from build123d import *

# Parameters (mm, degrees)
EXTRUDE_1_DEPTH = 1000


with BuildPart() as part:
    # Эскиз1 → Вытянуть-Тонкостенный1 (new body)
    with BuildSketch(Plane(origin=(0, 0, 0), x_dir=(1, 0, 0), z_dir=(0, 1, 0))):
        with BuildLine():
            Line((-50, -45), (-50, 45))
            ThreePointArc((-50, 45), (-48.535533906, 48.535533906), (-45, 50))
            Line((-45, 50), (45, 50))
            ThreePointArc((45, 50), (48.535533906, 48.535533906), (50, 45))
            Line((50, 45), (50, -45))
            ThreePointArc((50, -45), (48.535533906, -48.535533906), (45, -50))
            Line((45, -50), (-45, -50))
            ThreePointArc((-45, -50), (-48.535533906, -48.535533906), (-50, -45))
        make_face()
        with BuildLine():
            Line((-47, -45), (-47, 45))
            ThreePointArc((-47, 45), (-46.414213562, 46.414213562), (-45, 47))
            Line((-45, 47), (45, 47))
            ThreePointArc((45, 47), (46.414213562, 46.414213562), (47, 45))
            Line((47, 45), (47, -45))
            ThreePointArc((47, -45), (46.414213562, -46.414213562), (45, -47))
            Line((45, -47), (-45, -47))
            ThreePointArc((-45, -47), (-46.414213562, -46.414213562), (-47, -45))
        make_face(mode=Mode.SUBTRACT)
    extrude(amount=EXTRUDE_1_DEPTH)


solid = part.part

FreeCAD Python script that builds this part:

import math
import FreeCAD as App
import Part
import Sketcher
from FreeCAD import Vector

doc = App.newDocument("Part")
body = doc.addObject("PartDesign::Body", "Body")

sketch1 = body.newObject("Sketcher::SketchObject", "Sketch")
sketch1.AttachmentSupport = (doc.getObject("XZ_Plane"), [""])
sketch1.MapMode = "FlatFace"
sketch1.addGeometry([
    Part.LineSegment(Vector(-50, -45, 0), Vector(-50, 45, 0)),
    Part.ArcOfCircle(Part.Circle(Vector(-45, 45, 0), Vector(0, 0, 1), 5), math.radians(90), math.radians(180)),
    Part.LineSegment(Vector(-45, 50, 0), Vector(45, 50, 0)),
    Part.ArcOfCircle(Part.Circle(Vector(45, 45, 0), Vector(0, 0, 1), 5), math.radians(0), math.radians(90)),
    Part.LineSegment(Vector(50, 45, 0), Vector(50, -45, 0)),
    Part.ArcOfCircle(Part.Circle(Vector(45, -45, 0), Vector(0, 0, 1), 5), math.radians(-90), math.radians(0)),
    Part.LineSegment(Vector(45, -50, 0), Vector(-45, -50, 0)),
    Part.ArcOfCircle(Part.Circle(Vector(-45, -45, 0), Vector(0, 0, 1), 5), math.radians(180), math.radians(270)),
    Part.LineSegment(Vector(-47, 45, 0), Vector(-47, -45, 0)),
    Part.ArcOfCircle(Part.Circle(Vector(-45, -45, 0), Vector(0, 0, 1), 2), math.radians(-180), math.radians(-90)),
    Part.LineSegment(Vector(-45, -47, 0), Vector(45, -47, 0)),
    Part.ArcOfCircle(Part.Circle(Vector(45, -45, 0), Vector(0, 0, 1), 2), math.radians(-90), math.radians(0)),
    Part.LineSegment(Vector(47, -45, 0), Vector(47, 45, 0)),
    Part.ArcOfCircle(Part.Circle(Vector(45, 45, 0), Vector(0, 0, 1), 2), math.radians(0), math.radians(90)),
    Part.LineSegment(Vector(45, 47, 0), Vector(-45, 47, 0)),
    Part.ArcOfCircle(Part.Circle(Vector(-45, 45, 0), Vector(0, 0, 1), 2), math.radians(90), math.radians(180)),
], False)
sketch1.addConstraint([
    Sketcher.Constraint("Tangent", 0, 2, 1, 2),
    Sketcher.Constraint("Tangent", 1, 1, 2, 1),
    Sketcher.Constraint("Tangent", 2, 2, 3, 2),
    Sketcher.Constraint("Tangent", 3, 1, 4, 1),
    Sketcher.Constraint("Tangent", 4, 2, 5, 2),
    Sketcher.Constraint("Tangent", 5, 1, 6, 1),
    Sketcher.Constraint("Tangent", 6, 2, 7, 2),
    Sketcher.Constraint("Tangent", 7, 1, 0, 1),
    Sketcher.Constraint("Tangent", 8, 2, 9, 1),
    Sketcher.Constraint("Tangent", 9, 2, 10, 1),
    Sketcher.Constraint("Tangent", 10, 2, 11, 1),
    Sketcher.Constraint("Tangent", 11, 2, 12, 1),
    Sketcher.Constraint("Tangent", 12, 2, 13, 1),
    Sketcher.Constraint("Tangent", 13, 2, 14, 1),
    Sketcher.Constraint("Tangent", 14, 2, 15, 1),
    Sketcher.Constraint("Tangent", 15, 2, 8, 1),
    Sketcher.Constraint("Vertical", 0),
    Sketcher.Constraint("Horizontal", 2),
    Sketcher.Constraint("Vertical", 4),
    Sketcher.Constraint("Horizontal", 6),
    Sketcher.Constraint("Vertical", 8),
    Sketcher.Constraint("Horizontal", 10),
    Sketcher.Constraint("Vertical", 12),
    Sketcher.Constraint("Horizontal", 14),
    Sketcher.Constraint("Coincident", 9, 3, 7, 3),
    Sketcher.Constraint("Coincident", 11, 3, 5, 3),
    Sketcher.Constraint("Coincident", 13, 3, 3, 3),
    Sketcher.Constraint("Equal", 1, 3),
    Sketcher.Constraint("Equal", 3, 5),
    Sketcher.Constraint("Equal", 5, 7),
    Sketcher.Constraint("Equal", 13, 15),
    Sketcher.Constraint("Symmetric", 1, 3, 5, 3, -1, 1),
    Sketcher.Constraint("Equal", 14, 0),
    Sketcher.Constraint("Radius", 1, 5.0),
    Sketcher.Constraint("Radius", 9, 2.0),
    Sketcher.Constraint("DistanceX", 2, 1, 2, 2, 90.0),
])
pad1 = body.newObject("PartDesign::Pad", "Pad")
pad1.Profile = sketch1
pad1.Length = 1000
pad1.Reversed = True

doc.recompute()
